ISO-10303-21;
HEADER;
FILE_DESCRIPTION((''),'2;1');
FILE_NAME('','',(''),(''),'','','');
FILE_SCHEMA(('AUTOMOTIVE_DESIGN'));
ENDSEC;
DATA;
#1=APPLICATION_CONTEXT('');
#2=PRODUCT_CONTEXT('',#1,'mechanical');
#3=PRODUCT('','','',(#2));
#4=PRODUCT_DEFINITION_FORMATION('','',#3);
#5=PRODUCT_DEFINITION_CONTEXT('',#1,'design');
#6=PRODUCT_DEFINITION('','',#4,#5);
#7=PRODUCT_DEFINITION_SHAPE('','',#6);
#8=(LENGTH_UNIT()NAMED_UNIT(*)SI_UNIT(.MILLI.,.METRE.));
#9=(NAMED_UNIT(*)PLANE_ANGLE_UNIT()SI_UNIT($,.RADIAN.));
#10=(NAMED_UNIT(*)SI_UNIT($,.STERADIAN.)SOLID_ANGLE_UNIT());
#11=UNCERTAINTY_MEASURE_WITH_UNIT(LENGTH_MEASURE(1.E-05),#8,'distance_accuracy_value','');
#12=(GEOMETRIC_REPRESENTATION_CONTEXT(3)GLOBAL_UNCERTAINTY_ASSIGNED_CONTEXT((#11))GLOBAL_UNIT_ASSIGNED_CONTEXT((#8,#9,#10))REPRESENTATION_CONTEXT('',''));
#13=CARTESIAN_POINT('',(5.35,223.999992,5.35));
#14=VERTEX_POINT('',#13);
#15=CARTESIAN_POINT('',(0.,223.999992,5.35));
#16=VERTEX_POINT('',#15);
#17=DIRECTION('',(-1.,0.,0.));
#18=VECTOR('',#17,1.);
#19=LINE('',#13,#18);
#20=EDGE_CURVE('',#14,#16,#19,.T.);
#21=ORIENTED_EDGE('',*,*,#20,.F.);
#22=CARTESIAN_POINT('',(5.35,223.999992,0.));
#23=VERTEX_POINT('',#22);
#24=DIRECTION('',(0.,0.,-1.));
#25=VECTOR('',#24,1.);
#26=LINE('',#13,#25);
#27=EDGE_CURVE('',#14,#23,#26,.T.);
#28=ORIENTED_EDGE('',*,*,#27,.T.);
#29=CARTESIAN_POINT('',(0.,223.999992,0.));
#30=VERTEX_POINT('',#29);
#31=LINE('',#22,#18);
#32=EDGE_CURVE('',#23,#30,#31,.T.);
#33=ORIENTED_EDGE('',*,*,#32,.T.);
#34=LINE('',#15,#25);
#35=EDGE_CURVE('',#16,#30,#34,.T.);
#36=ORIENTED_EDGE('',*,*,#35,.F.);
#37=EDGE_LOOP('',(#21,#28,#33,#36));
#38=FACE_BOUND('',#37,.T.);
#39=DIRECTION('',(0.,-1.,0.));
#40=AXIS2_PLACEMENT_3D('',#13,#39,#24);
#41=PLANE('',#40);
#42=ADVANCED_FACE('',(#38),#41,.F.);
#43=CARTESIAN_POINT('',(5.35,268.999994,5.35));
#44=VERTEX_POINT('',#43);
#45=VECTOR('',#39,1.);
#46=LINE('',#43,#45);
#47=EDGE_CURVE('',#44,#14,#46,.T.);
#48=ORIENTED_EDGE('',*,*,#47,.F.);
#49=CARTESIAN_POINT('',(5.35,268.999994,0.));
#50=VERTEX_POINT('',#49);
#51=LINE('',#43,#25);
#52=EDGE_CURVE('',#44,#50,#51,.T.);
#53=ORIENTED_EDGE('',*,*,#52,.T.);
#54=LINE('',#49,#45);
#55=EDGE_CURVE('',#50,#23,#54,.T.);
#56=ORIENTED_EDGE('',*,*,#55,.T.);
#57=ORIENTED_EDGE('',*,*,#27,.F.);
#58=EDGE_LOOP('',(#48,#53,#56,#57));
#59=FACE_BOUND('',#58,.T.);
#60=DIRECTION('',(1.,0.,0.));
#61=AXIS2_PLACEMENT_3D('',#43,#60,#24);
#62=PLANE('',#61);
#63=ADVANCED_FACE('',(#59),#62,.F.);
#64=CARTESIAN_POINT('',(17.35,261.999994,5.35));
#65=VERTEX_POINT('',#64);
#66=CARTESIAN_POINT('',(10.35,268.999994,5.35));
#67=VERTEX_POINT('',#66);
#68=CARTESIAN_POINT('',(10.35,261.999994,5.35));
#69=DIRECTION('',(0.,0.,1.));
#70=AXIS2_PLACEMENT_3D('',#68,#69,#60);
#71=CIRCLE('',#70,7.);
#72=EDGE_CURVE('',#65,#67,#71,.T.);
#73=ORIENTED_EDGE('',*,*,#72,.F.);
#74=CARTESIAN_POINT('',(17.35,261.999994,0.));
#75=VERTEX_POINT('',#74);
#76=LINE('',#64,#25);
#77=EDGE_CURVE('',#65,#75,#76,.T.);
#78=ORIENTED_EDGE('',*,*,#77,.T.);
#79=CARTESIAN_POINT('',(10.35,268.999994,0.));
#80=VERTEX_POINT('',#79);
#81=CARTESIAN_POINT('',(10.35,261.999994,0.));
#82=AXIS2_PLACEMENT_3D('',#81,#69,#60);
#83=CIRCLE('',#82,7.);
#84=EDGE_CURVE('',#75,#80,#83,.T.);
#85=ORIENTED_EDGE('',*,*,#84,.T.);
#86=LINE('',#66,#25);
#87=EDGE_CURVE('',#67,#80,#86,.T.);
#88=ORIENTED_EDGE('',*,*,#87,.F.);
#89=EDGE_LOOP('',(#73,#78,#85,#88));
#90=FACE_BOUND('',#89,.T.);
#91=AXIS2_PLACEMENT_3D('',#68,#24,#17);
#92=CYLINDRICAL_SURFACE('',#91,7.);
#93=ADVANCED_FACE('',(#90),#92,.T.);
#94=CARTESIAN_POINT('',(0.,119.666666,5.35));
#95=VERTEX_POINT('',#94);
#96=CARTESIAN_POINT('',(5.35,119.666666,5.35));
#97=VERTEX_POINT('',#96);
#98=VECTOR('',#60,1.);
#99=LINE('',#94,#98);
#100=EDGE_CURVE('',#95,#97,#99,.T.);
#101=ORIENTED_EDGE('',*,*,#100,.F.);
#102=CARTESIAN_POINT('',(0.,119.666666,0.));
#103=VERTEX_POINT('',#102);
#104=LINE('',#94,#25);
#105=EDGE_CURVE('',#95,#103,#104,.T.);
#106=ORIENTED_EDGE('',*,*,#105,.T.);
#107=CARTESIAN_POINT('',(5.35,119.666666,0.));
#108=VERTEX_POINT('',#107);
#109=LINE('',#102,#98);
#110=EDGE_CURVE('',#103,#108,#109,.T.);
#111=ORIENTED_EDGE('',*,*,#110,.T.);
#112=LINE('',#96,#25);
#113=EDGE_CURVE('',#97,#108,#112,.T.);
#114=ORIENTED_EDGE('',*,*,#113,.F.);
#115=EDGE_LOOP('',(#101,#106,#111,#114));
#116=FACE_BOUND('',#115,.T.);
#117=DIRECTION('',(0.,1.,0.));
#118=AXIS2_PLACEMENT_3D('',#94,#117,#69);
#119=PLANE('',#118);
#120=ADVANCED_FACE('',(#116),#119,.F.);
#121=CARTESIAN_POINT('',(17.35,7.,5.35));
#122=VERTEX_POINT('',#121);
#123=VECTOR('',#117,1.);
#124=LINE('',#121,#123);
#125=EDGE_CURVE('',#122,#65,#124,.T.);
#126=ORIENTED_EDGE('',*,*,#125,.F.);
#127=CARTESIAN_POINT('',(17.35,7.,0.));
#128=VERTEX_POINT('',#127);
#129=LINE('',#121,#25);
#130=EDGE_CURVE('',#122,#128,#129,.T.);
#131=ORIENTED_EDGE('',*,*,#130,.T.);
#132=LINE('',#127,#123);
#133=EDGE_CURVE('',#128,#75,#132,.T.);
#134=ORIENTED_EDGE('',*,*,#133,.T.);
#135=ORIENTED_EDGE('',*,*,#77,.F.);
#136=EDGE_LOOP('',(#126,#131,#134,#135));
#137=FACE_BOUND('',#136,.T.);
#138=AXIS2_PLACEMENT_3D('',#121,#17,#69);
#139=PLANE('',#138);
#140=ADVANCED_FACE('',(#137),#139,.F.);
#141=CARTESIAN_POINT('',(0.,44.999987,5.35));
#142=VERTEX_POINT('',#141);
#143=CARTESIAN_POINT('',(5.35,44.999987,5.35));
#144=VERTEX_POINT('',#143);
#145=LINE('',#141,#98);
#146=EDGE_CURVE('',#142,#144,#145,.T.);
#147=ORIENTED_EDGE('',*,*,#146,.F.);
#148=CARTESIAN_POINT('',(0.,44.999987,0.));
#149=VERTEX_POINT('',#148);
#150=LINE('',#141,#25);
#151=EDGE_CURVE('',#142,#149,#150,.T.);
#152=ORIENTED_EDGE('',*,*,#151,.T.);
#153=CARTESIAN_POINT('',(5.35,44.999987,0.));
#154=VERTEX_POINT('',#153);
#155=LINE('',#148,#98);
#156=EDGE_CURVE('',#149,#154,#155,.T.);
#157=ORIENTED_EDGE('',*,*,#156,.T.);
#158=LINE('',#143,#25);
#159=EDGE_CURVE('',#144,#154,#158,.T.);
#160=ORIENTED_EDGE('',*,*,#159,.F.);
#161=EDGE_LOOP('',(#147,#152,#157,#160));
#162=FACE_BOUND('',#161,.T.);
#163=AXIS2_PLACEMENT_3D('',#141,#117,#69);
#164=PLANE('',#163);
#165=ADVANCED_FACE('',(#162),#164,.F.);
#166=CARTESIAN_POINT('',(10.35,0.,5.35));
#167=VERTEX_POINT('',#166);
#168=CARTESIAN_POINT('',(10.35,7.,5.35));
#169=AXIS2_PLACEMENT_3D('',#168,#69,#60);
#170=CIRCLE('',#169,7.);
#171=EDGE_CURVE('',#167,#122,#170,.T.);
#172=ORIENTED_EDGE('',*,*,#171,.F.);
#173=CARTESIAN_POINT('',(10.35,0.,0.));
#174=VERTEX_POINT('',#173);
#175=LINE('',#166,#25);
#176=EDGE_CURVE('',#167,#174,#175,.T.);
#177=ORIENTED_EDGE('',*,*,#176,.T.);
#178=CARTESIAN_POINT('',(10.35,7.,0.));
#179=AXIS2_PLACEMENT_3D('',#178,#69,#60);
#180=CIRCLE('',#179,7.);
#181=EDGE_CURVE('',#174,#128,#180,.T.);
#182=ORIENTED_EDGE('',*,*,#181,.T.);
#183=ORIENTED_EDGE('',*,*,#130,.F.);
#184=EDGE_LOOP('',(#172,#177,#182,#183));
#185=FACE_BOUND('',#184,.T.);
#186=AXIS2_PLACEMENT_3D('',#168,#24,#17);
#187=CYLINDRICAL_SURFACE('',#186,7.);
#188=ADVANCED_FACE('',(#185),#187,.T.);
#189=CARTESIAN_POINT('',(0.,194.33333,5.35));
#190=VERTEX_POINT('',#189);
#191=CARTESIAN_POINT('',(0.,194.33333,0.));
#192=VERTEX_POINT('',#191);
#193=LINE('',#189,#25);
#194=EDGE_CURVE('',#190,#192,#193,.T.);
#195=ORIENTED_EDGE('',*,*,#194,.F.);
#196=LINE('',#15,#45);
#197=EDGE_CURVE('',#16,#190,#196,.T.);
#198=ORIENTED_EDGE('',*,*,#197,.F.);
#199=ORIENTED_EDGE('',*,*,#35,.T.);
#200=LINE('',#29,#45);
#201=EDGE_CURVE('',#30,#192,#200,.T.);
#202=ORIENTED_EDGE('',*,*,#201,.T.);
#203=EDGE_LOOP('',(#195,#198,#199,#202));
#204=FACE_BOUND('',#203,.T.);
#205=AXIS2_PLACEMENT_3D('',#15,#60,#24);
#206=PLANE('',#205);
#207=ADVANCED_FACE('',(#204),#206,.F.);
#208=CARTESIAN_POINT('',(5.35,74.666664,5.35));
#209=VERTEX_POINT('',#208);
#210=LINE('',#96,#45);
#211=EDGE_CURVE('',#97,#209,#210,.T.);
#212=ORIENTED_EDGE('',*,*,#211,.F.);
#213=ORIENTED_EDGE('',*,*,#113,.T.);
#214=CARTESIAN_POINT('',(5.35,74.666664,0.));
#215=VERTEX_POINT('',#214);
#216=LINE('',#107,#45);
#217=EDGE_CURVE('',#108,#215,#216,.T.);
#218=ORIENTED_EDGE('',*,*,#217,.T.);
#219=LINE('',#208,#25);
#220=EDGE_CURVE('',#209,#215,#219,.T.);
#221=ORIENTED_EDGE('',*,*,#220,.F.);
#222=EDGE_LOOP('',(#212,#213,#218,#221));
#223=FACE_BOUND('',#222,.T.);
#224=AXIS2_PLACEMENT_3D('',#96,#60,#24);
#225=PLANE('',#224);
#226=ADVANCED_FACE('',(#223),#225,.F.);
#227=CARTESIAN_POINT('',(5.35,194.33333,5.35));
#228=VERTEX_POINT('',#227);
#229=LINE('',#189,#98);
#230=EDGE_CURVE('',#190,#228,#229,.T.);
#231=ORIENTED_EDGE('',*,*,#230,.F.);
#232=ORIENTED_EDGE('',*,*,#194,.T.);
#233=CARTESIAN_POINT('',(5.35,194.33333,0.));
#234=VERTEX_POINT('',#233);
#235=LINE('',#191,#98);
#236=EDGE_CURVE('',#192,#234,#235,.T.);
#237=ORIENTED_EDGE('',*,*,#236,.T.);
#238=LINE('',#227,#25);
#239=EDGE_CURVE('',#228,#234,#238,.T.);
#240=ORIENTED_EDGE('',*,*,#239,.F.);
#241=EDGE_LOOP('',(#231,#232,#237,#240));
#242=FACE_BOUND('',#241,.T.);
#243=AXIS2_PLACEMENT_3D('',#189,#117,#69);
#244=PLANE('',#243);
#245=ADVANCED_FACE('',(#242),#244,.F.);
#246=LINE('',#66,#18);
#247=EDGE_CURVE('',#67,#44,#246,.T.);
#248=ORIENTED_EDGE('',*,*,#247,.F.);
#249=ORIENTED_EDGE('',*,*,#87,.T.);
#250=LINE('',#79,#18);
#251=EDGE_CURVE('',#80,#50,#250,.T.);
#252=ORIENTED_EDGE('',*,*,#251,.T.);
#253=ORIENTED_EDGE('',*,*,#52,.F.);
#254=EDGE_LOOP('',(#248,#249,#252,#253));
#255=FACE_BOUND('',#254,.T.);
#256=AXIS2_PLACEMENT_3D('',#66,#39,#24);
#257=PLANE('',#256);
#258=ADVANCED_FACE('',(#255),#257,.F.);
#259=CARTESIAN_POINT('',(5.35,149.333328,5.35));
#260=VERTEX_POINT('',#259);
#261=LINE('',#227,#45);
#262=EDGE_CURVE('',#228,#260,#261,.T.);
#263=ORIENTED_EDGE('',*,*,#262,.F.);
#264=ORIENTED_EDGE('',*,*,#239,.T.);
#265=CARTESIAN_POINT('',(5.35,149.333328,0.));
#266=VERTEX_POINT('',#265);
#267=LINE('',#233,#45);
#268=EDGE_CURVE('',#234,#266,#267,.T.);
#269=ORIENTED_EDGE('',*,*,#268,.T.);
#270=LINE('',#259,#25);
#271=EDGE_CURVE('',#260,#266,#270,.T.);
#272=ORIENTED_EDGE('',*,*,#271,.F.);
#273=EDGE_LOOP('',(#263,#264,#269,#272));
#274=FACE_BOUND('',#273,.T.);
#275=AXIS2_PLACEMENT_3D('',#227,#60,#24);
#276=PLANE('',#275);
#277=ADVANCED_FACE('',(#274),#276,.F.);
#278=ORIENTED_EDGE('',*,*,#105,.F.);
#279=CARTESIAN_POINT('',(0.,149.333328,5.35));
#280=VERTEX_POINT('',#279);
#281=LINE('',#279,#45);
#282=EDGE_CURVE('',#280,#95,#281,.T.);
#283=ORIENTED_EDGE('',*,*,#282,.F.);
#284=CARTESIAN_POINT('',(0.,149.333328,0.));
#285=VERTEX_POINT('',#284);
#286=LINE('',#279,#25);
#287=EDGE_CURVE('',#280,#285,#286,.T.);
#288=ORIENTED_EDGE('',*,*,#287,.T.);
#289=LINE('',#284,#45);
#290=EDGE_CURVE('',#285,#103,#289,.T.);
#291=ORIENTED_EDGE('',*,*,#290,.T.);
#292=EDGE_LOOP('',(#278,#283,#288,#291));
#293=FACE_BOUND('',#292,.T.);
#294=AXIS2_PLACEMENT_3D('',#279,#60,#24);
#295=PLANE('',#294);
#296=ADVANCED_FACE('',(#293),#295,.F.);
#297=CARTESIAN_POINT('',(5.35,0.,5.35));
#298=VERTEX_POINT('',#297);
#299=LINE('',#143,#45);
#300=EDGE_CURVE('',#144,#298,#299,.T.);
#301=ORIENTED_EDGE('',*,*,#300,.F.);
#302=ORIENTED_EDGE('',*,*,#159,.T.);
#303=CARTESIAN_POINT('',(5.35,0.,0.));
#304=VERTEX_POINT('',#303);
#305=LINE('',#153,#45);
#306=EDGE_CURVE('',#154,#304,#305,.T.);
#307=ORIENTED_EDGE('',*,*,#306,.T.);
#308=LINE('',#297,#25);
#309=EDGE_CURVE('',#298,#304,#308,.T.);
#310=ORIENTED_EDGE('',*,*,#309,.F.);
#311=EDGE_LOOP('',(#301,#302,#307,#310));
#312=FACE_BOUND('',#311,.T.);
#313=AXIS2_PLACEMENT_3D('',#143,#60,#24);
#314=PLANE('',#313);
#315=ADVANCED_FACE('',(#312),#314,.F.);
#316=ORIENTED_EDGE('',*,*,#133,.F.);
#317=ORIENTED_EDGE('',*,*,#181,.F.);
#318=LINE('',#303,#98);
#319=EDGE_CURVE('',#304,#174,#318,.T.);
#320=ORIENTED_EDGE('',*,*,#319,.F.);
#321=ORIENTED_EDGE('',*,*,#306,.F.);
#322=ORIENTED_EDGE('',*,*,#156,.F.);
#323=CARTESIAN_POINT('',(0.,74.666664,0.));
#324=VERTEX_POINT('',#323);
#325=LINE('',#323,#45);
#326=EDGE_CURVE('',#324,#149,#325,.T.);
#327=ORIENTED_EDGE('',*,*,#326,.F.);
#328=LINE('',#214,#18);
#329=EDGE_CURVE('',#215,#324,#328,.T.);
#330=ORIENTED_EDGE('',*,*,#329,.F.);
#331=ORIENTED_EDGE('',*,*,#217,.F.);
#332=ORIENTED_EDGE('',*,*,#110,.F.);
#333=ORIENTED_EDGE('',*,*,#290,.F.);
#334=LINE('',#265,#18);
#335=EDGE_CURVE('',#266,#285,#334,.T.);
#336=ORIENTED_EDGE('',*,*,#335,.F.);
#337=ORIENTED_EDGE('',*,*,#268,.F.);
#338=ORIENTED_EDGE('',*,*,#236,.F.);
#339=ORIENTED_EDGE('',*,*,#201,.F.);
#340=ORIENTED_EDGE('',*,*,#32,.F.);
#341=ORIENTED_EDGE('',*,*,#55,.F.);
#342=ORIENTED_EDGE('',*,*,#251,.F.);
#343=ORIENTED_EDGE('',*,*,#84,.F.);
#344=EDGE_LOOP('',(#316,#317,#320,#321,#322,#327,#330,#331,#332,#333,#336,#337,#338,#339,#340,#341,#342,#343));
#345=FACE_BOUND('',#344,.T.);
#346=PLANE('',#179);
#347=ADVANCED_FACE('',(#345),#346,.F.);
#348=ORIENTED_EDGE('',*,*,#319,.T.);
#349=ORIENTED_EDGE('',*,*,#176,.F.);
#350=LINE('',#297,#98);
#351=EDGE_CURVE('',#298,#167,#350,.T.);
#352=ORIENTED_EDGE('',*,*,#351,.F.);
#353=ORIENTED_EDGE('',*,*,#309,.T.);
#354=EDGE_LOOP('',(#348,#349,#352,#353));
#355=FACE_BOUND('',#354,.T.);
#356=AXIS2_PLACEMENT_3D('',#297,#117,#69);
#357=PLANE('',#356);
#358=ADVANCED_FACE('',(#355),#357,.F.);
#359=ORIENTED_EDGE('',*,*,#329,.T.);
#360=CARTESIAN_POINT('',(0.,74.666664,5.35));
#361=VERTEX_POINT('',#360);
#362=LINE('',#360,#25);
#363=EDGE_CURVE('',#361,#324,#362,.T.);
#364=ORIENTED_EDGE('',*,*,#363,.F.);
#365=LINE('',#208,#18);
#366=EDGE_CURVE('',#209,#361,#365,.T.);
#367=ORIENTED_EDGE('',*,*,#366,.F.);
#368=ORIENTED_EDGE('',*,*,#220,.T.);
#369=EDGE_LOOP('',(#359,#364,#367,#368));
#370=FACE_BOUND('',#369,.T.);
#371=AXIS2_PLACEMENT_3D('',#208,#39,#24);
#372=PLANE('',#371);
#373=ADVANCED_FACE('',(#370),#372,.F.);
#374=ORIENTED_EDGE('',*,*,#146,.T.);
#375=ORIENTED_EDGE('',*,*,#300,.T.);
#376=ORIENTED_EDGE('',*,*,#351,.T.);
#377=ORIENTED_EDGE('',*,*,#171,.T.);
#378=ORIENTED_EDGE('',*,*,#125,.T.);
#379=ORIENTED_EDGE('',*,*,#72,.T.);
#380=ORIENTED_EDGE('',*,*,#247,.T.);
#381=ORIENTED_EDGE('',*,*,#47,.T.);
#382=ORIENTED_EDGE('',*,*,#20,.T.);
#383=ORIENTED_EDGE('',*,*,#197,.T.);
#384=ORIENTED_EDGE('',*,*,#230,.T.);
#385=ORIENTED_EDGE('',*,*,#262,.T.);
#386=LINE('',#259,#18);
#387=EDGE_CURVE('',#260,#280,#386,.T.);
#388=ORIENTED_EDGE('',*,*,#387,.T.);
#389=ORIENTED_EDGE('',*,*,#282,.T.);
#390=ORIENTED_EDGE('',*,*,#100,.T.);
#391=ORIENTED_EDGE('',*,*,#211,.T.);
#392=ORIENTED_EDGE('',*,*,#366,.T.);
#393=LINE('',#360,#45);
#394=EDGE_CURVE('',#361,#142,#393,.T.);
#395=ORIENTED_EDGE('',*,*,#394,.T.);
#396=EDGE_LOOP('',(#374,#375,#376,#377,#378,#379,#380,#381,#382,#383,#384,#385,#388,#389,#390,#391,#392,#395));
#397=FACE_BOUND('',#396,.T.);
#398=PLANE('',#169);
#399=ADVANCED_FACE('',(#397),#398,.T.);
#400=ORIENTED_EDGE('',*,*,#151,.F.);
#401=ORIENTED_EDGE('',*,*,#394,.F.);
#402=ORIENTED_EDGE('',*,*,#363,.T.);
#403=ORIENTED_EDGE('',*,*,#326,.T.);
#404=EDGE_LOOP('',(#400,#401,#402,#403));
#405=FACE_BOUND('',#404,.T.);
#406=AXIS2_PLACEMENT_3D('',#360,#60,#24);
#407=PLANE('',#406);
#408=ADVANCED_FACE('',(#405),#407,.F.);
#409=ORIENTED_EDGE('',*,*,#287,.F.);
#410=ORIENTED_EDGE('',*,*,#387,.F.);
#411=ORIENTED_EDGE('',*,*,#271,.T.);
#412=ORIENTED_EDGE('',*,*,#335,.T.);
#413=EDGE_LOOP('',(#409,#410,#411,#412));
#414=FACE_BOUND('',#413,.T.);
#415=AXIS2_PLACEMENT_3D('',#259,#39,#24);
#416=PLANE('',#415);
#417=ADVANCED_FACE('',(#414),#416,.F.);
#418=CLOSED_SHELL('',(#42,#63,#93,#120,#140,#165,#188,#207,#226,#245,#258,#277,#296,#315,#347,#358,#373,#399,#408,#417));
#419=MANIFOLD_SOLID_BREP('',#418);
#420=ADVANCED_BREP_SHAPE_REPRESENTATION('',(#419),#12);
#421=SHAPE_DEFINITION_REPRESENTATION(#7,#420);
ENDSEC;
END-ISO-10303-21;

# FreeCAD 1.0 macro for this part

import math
import FreeCAD as App
import Part
import Sketcher

V = App.Vector
Q = App.Units.Quantity

doc = App.newDocument("Part")
body = doc.addObject("PartDesign::Body", "Body")

# Sketch on XY plane
sketch1 = body.newObject("Sketcher::SketchObject", "Sketch")
sketch1.AttachmentSupport = (doc.getObject("XY_Plane"), [""])
sketch1.MapMode = "FlatFace"
sketch1.addGeometry([
    Part.LineSegment(V(10.4, 269, 0), V(5.4, 269, 0)),  # 0
    Part.LineSegment(V(5.4, 269, 0), V(5.4, 224, 0)),  # 1
    Part.LineSegment(V(5.4, 224, 0), V(0, 224, 0)),  # 2
    Part.LineSegment(V(0, 224, 0), V(0, 194.3, 0)),  # 3
    Part.LineSegment(V(0, 194.3, 0), V(5.4, 194.3, 0)),  # 4
    Part.LineSegment(V(5.4, 194.3, 0), V(5.4, 149.3, 0)),  # 5
    Part.LineSegment(V(5.4, 149.3, 0), V(0, 149.3, 0)),  # 6
    Part.LineSegment(V(0, 149.3, 0), V(0, 119.7, 0)),  # 7
    Part.LineSegment(V(0, 119.7, 0), V(5.4, 119.7, 0)),  # 8
    Part.LineSegment(V(5.4, 119.7, 0), V(5.4, 74.7, 0)),  # 9
    Part.LineSegment(V(5.4, 74.7, 0), V(0, 74.7, 0)),  # 10
    Part.LineSegment(V(0, 74.7, 0), V(0, 45, 0)),  # 11
    Part.LineSegment(V(0, 45, 0), V(5.4, 45, 0)),  # 12
    Part.LineSegment(V(5.4, 45, 0), V(5.4, 0, 0)),  # 13
    Part.LineSegment(V(5.4, 0, 0), V(10.4, 0, 0)),  # 14
    Part.ArcOfCircle(Part.Circle(V(10.4, 7, 0), V(0, 0, 1), 7), math.radians(-90), math.radians(0)),  # 15
    Part.LineSegment(V(17.4, 7, 0), V(17.4, 262, 0)),  # 16
    Part.ArcOfCircle(Part.Circle(V(10.4, 262, 0), V(0, 0, 1), 7), math.radians(0), math.radians(90)),  # 17
], False)
sketch1.addConstraint([
    Sketcher.Constraint("Coincident", 0, 2, 1, 1),
    Sketcher.Constraint("Coincident", 1, 2, 2, 1),
    Sketcher.Constraint("Coincident", 2, 2, 3, 1),
    Sketcher.Constraint("Coincident", 3, 2, 4, 1),
    Sketcher.Constraint("Coincident", 4, 2, 5, 1),
    Sketcher.Constraint("Coincident", 5, 2, 6, 1),
    Sketcher.Constraint("Coincident", 6, 2, 7, 1),
    Sketcher.Constraint("Coincident", 7, 2, 8, 1),
    Sketcher.Constraint("Coincident", 8, 2, 9, 1),
    Sketcher.Constraint("Coincident", 9, 2, 10, 1),
    Sketcher.Constraint("Coincident", 10, 2, 11, 1),
    Sketcher.Constraint("Coincident", 11, 2, 12, 1),
    Sketcher.Constraint("Coincident", 12, 2, 13, 1),
    Sketcher.Constraint("Coincident", 13, 2, 14, 1),
    Sketcher.Constraint("Tangent", 14, 2, 15, 1),
    Sketcher.Constraint("Tangent", 15, 2, 16, 1),
    Sketcher.Constraint("Tangent", 16, 2, 17, 1),
    Sketcher.Constraint("Tangent", 17, 2, 0, 1),
    Sketcher.Constraint("Horizontal", 0),
    Sketcher.Constraint("Vertical", 1),
    Sketcher.Constraint("Horizontal", 2),
    Sketcher.Constraint("Vertical", 3),
    Sketcher.Constraint("Horizontal", 4),
    Sketcher.Constraint("Vertical", 5),
    Sketcher.Constraint("Horizontal", 6),
    Sketcher.Constraint("Vertical", 7),
    Sketcher.Constraint("Horizontal", 8),
    Sketcher.Constraint("Vertical", 9),
    Sketcher.Constraint("Horizontal", 10),
    Sketcher.Constraint("Vertical", 11),
    Sketcher.Constraint("Horizontal", 12),
    Sketcher.Constraint("Vertical", 13),
    Sketcher.Constraint("Horizontal", 14),
    Sketcher.Constraint("Vertical", 16),
    Sketcher.Constraint("Equal", 15, 17),
    Sketcher.Constraint("PointOnObject", 2, 2, -2),
    Sketcher.Constraint("PointOnObject", 6, 2, -2),
    Sketcher.Constraint("PointOnObject", 10, 2, -2),
    Sketcher.Constraint("PointOnObject", 13, 2, -1),
    Sketcher.Constraint("Vertical", 1, 2, 4, 2),
    Sketcher.Constraint("Vertical", 5, 2, 8, 2),
    Sketcher.Constraint("Vertical", 9, 2, 12, 2),
    Sketcher.Constraint("Equal", 1, 5),
    Sketcher.Constraint("Equal", 3, 7),
    Sketcher.Constraint("Equal", 5, 9),
    Sketcher.Constraint("Radius", 15, Q("7 mm")),
    Sketcher.Constraint("DistanceX", 0, 2, 0, 1, Q("5 mm")),
    Sketcher.Constraint("DistanceY", 1, 2, 1, 1, Q("45.000002 mm")),
    Sketcher.Constraint("DistanceX", 2, 2, 2, 1, Q("5.35 mm")),
    Sketcher.Constraint("DistanceY", 3, 2, 3, 1, Q("29.666662 mm")),
    Sketcher.Constraint("DistanceY", 11, 2, 11, 1, Q("29.666677 mm")),
    Sketcher.Constraint("DistanceY", 13, 2, 13, 1, Q("44.999987 mm")),
])
pad1 = body.newObject("PartDesign::Pad", "Pad")
pad1.Profile = sketch1
pad1.Length = 5.35

doc.recompute()
